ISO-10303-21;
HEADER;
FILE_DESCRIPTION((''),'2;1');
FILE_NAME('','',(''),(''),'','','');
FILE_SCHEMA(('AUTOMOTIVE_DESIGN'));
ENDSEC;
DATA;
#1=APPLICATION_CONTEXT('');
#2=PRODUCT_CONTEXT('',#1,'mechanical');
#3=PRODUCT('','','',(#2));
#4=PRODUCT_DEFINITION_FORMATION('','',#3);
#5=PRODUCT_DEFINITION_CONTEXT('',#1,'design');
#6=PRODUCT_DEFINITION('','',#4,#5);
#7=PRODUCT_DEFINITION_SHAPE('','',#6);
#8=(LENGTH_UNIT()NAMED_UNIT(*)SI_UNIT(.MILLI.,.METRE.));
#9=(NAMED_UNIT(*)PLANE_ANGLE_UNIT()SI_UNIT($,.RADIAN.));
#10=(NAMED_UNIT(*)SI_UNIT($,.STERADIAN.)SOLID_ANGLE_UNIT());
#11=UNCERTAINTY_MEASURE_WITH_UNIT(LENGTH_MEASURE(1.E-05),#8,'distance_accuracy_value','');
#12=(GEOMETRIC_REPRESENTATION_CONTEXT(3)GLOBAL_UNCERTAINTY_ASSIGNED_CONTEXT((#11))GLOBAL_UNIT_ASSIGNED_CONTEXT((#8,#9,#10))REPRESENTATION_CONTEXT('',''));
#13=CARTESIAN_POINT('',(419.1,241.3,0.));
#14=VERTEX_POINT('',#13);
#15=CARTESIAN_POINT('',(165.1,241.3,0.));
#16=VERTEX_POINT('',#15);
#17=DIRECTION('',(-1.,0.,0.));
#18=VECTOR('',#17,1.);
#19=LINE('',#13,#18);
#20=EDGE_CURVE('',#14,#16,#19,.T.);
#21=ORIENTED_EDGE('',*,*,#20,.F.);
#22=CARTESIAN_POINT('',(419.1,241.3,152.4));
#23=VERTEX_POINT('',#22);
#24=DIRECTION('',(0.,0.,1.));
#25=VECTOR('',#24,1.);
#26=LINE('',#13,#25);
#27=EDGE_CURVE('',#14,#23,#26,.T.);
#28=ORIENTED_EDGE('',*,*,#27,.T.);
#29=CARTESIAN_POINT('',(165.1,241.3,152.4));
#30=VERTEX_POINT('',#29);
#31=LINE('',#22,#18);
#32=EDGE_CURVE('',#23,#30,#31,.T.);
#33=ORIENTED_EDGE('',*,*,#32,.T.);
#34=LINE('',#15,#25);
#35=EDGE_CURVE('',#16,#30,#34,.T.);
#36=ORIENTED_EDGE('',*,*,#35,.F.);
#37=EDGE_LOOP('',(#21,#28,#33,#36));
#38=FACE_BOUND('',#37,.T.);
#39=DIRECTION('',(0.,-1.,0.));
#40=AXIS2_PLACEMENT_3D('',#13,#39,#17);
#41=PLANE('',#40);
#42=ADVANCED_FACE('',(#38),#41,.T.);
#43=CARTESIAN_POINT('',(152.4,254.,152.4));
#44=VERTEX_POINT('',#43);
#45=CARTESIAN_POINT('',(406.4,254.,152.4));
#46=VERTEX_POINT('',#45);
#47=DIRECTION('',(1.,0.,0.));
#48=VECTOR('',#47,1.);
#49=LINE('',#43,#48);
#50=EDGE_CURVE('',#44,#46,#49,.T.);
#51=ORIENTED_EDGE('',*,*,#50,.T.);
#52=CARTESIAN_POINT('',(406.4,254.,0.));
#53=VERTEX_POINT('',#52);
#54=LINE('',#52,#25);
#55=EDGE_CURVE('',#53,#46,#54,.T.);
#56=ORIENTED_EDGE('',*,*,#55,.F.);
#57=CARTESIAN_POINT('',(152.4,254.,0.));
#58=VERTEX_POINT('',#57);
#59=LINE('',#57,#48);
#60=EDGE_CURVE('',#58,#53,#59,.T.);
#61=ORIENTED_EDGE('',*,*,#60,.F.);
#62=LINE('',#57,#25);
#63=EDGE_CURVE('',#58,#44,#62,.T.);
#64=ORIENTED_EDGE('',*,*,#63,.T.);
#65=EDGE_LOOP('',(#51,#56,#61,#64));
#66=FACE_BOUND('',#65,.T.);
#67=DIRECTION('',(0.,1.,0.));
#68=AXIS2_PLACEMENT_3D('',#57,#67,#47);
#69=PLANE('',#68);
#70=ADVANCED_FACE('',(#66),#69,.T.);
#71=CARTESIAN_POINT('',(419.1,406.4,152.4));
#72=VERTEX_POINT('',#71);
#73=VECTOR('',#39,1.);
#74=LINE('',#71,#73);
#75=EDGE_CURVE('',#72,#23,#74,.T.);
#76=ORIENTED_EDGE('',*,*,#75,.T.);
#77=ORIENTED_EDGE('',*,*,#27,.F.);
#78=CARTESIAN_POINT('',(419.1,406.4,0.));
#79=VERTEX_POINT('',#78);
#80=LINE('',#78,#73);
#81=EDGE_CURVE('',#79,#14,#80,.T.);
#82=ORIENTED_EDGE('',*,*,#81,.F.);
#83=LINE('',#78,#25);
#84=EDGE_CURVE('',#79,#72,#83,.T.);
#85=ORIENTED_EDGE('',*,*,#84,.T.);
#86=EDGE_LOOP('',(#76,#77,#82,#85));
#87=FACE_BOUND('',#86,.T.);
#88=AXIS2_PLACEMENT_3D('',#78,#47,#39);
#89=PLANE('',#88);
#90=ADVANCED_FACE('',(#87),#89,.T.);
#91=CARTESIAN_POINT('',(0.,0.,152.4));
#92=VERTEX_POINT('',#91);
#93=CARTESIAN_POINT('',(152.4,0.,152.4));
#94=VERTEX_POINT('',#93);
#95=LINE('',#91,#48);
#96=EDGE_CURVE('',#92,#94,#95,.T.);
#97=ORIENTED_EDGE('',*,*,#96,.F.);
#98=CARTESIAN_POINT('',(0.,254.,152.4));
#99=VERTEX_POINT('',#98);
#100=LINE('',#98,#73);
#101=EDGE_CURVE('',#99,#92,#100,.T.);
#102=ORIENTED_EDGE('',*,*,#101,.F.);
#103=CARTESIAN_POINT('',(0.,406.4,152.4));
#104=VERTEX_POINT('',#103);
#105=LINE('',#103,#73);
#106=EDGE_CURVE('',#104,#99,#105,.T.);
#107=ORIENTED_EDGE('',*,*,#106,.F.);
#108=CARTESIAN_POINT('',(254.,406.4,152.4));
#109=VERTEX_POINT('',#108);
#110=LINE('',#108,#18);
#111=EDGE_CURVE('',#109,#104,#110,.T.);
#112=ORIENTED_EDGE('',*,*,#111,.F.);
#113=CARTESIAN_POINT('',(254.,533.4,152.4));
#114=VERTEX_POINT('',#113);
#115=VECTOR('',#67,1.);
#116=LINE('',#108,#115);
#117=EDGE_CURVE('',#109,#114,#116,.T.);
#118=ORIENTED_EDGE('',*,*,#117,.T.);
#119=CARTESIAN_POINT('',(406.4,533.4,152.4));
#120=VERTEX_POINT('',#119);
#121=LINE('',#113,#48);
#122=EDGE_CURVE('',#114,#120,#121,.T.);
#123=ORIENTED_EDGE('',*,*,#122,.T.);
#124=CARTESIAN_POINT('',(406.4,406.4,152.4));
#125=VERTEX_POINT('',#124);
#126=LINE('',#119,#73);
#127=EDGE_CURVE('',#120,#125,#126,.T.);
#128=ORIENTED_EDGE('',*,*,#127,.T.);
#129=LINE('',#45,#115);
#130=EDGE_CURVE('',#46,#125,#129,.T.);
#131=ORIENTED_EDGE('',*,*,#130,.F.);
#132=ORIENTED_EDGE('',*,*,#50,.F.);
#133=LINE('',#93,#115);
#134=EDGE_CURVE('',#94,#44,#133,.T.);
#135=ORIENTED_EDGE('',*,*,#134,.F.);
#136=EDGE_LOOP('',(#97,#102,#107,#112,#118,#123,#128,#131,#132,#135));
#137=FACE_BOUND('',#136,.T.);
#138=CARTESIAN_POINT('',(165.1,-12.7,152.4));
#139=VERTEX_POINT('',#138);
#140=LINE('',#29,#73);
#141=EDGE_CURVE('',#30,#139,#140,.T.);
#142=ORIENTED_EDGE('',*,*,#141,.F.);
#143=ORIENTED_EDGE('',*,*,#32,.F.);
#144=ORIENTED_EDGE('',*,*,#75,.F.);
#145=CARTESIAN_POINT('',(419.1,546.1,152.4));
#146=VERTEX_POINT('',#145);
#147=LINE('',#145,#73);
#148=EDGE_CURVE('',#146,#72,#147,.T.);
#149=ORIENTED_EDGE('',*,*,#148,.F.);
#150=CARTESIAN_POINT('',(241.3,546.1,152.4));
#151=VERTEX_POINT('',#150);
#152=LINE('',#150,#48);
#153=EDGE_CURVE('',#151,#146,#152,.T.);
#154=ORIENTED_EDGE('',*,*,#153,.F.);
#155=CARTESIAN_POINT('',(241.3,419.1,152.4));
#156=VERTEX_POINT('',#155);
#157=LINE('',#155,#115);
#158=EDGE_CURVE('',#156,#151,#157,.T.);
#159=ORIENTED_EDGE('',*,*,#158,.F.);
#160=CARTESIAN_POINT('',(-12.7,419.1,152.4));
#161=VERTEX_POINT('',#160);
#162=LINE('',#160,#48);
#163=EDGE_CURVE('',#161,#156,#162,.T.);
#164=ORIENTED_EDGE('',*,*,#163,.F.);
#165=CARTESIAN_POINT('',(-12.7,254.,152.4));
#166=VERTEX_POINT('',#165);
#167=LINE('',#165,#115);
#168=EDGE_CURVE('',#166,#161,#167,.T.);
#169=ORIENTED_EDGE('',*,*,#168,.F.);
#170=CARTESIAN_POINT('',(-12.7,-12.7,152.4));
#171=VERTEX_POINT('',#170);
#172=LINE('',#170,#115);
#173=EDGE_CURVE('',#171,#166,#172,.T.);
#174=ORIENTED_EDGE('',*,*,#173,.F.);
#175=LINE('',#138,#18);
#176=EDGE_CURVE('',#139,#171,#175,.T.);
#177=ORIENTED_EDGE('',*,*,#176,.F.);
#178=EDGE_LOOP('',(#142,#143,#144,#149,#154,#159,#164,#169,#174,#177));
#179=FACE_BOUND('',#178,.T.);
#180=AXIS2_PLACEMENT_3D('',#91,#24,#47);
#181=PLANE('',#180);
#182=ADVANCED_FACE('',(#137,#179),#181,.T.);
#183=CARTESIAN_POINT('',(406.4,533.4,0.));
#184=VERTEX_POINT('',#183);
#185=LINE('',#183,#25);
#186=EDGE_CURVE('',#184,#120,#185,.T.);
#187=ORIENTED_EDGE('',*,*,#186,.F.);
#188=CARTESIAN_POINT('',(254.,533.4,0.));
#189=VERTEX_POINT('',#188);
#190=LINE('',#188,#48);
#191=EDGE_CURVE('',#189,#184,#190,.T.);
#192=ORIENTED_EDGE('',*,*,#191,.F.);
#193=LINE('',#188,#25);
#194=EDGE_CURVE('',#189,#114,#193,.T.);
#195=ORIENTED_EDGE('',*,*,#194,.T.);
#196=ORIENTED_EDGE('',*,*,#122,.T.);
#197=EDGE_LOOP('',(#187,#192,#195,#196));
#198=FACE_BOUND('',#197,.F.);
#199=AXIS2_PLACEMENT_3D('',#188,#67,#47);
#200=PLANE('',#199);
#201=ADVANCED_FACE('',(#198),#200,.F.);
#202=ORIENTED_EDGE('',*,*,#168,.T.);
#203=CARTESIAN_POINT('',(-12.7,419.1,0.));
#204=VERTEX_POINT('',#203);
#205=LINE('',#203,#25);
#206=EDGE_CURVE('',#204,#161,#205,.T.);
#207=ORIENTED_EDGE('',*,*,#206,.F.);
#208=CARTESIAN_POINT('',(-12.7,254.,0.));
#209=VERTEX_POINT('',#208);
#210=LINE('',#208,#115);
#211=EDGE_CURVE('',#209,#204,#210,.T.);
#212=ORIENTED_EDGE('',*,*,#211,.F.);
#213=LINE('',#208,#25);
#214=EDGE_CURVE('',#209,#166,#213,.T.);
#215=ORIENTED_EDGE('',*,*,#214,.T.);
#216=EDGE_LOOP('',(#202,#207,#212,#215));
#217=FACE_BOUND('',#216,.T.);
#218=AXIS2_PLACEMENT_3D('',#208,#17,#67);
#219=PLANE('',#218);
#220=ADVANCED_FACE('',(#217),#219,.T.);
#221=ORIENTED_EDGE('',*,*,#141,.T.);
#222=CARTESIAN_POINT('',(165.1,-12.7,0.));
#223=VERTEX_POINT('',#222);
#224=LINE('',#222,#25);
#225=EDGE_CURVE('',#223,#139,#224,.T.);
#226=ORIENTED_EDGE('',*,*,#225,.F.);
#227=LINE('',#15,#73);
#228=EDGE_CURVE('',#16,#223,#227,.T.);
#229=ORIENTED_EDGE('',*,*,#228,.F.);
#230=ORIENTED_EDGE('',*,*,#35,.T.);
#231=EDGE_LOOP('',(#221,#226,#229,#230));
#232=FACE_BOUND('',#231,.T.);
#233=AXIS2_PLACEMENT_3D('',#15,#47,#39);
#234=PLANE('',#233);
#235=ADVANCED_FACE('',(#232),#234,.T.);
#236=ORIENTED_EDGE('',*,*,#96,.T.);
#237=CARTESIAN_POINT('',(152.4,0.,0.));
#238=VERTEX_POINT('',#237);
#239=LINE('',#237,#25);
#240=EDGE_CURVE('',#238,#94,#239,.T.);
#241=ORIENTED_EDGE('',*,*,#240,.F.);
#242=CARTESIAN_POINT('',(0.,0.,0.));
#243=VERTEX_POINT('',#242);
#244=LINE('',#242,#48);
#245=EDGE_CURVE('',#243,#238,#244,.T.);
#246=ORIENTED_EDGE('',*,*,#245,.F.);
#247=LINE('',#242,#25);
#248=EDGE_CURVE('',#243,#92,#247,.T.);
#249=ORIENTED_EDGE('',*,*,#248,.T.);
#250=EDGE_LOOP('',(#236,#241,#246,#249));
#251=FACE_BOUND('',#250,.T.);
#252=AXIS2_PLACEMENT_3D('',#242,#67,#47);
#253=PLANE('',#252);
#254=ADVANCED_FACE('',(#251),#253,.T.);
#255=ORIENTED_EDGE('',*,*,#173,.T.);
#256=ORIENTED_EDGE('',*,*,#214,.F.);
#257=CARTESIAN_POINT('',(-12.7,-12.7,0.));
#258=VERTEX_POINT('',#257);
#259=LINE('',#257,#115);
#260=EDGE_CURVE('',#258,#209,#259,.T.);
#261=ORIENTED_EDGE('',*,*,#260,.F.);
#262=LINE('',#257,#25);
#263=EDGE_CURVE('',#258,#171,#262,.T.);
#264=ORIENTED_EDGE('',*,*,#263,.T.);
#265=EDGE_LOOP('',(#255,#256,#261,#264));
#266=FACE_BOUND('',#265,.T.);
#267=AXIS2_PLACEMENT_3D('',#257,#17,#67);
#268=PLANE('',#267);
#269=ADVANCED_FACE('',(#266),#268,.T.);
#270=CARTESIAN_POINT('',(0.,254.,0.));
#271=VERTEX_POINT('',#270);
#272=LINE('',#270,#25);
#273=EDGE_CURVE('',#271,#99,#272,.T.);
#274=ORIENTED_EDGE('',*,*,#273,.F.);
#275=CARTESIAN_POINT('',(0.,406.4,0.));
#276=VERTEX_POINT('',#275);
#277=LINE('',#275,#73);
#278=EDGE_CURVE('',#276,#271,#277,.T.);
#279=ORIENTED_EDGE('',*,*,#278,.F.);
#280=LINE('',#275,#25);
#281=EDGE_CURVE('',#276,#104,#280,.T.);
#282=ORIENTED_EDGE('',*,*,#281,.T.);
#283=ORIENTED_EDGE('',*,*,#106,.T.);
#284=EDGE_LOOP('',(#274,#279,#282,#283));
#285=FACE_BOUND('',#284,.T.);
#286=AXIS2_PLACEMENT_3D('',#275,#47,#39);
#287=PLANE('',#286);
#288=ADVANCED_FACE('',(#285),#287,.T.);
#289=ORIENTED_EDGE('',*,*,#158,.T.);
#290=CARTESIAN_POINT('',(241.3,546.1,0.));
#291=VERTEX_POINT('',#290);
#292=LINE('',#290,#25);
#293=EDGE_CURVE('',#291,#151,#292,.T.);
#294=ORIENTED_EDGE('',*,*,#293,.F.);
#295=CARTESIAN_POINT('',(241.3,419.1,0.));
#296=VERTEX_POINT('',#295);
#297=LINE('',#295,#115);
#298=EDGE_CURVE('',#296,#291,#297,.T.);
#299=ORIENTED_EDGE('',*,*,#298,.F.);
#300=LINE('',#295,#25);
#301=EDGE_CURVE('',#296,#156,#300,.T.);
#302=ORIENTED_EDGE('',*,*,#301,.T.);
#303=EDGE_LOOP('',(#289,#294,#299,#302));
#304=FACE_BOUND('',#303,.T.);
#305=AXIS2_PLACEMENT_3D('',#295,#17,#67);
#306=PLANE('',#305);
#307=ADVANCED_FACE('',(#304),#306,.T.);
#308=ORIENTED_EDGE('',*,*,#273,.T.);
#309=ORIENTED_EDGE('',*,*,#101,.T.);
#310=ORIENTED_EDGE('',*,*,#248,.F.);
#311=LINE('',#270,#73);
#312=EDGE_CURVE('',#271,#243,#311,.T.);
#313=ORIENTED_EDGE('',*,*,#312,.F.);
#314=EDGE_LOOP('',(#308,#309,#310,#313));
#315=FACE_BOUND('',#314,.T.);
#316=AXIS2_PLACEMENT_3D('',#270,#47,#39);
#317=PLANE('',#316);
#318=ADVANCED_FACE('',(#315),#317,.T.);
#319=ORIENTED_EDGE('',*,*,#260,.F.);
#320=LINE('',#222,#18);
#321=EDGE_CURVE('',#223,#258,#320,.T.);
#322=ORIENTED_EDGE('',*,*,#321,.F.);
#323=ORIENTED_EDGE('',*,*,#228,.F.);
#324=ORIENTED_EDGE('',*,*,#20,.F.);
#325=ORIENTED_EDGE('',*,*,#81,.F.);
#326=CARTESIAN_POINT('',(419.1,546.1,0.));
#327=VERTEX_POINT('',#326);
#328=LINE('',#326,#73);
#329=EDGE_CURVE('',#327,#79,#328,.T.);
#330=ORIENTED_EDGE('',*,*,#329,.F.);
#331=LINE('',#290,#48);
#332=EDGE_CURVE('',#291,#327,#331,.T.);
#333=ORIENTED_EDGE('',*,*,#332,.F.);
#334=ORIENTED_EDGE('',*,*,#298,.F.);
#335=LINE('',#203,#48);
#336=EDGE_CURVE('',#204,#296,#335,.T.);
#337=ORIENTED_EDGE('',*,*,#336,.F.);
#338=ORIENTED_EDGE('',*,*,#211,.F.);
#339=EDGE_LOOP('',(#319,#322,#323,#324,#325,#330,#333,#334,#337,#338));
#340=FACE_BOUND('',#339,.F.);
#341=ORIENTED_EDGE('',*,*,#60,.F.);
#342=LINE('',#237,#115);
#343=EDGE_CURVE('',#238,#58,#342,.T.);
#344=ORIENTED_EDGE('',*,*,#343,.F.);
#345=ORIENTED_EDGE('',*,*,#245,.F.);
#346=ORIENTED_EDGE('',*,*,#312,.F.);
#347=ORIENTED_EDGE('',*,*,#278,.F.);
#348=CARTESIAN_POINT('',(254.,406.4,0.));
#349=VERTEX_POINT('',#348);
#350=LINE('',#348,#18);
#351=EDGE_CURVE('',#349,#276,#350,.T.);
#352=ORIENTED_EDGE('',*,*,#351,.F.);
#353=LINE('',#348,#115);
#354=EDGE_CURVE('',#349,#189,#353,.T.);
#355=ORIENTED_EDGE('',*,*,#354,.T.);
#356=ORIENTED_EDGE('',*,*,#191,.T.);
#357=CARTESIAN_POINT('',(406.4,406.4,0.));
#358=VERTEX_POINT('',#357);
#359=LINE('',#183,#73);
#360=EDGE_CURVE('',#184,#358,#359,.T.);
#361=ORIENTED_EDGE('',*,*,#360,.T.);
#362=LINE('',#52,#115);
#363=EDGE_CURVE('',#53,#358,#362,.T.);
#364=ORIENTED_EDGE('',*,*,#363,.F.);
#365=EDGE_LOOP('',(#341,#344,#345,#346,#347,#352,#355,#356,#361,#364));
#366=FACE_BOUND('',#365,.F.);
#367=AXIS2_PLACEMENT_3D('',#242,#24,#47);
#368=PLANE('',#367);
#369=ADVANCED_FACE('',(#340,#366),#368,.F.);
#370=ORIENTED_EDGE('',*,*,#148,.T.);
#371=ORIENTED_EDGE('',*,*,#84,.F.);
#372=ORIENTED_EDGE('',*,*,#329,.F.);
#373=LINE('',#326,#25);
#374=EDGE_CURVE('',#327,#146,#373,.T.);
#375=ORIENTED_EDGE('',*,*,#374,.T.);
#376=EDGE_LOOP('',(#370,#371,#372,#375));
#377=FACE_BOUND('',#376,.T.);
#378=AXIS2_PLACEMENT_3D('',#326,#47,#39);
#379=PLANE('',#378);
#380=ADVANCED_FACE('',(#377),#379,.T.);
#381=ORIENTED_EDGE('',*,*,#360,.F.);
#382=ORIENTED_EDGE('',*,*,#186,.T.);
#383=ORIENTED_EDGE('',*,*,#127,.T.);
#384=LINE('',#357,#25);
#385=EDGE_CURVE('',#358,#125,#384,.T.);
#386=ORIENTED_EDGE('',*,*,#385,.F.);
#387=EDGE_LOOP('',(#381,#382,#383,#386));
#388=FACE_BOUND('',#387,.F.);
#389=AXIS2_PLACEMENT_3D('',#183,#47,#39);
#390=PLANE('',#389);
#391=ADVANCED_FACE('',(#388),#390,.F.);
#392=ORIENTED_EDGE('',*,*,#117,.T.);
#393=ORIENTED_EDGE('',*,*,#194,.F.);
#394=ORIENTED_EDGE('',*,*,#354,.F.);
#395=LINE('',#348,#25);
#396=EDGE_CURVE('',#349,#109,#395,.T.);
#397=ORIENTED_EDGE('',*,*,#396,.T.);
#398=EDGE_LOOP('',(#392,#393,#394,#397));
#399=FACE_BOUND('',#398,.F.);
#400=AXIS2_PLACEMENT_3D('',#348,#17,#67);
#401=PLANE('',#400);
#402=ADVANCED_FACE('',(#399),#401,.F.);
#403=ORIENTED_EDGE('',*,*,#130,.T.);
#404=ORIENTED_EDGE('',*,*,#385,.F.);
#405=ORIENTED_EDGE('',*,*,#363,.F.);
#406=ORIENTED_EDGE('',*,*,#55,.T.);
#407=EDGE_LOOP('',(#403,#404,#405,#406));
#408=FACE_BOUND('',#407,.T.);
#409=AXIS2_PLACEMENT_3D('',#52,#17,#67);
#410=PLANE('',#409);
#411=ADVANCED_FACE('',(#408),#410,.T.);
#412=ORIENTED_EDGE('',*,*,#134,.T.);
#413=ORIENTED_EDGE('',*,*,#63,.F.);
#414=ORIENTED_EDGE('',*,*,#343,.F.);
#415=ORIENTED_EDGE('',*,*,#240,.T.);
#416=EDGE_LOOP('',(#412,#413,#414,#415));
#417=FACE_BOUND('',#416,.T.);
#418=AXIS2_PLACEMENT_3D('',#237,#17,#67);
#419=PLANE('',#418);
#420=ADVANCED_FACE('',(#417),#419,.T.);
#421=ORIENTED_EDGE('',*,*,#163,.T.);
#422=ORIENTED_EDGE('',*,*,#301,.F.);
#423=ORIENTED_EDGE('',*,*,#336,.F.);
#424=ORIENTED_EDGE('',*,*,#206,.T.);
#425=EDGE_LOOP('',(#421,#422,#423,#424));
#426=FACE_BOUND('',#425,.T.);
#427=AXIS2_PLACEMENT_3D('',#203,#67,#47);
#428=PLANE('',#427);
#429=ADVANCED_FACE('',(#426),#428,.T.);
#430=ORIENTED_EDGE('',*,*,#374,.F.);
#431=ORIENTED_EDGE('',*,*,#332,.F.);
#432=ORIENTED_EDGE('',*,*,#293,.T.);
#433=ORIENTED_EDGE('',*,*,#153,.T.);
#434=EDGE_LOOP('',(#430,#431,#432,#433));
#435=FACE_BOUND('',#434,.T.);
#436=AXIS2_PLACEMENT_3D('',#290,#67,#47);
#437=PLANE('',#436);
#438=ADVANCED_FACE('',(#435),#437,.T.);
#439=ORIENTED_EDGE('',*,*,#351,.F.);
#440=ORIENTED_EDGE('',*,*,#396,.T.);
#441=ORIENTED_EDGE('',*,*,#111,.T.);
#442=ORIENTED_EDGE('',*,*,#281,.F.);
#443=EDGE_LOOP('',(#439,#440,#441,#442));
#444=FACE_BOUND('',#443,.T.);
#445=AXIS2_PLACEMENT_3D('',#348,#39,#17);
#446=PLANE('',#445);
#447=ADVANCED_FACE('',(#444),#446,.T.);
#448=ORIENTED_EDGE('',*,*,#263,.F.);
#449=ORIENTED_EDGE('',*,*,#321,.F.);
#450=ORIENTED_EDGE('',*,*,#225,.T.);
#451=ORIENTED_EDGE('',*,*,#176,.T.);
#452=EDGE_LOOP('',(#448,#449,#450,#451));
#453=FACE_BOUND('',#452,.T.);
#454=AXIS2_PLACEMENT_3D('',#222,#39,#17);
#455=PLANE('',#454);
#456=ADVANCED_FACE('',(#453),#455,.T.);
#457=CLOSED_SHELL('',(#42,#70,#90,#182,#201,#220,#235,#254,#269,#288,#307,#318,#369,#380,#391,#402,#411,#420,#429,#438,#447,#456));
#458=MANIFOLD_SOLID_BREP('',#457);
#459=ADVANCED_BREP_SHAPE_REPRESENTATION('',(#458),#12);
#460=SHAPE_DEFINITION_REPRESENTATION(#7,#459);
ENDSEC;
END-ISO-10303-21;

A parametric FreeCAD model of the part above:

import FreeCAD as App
import Part
import Sketcher
Q = App.Units.Quantity


def add_polygon(sketch, points):
    """Adds a closed chain of lines whose ends are joined by coincident constraints."""
    first, n = sketch.GeometryCount, len(points)
    for a, b in zip(points, points[1:] + points[:1]):
        sketch.addGeometry(Part.LineSegment(App.Vector(*a, 0), App.Vector(*b, 0)), False)
    for i in range(n):
        sketch.addConstraint(Sketcher.Constraint("Coincident", first + i, 2, first + (i + 1) % n, 1))

doc = App.newDocument("Part")
params = doc.addObject("Spreadsheet::Sheet", "Params")
for row, (alias, value) in enumerate([
    ("sketch1_width", "10 in"),
    ("sketch1_width2", "7 in"),
    ("sketch1_height", "17 in"),
    ("sketch1_height2", "12 in"),
    ("pad1_length", "6 in"),
], start=1):
    params.set(f"A{row}", alias)
    params.set(f"B{row}", "=" + value)
    params.setAlias(f"B{row}", alias)

body = doc.addObject("PartDesign::Body", "Body")

# Sketch on XY plane
sketch1 = body.newObject("Sketcher::SketchObject", "Sketch")
sketch1.AttachmentSupport = (doc.getObject("XY_Plane"), [""])
sketch1.MapMode = "FlatFace"
add_polygon(sketch1, [(241, 419), (-13, 419), (-13, -13), (165, -13), (165, 241), (419, 241), (419, 546), (241, 546)])  # lines 0-7
add_polygon(sketch1, [(152, 0), (0, 0), (0, 406), (254, 406), (254, 533), (406, 533), (406, 254), (152, 254)])  # lines 8-15
sketch1.addConstraint([
    Sketcher.Constraint("Horizontal", 0),
    Sketcher.Constraint("Vertical", 1),
    Sketcher.Constraint("Horizontal", 2),
    Sketcher.Constraint("Vertical", 3),
    Sketcher.Constraint("Horizontal", 4),
    Sketcher.Constraint("Vertical", 5),
    Sketcher.Constraint("Horizontal", 6),
    Sketcher.Constraint("Vertical", 7),
    Sketcher.Constraint("Horizontal", 8),
    Sketcher.Constraint("Vertical", 9),
    Sketcher.Constraint("Horizontal", 10),
    Sketcher.Constraint("Vertical", 11),
    Sketcher.Constraint("Horizontal", 12),
    Sketcher.Constraint("Vertical", 13),
    Sketcher.Constraint("Horizontal", 14),
    Sketcher.Constraint("Vertical", 15),
    Sketcher.Constraint("Coincident", 8, 2, -1, 1),
    Sketcher.Constraint("Equal", 0, 4),
    Sketcher.Constraint("Equal", 4, 10),
    Sketcher.Constraint("Equal", 8, 12),
    Sketcher.Constraint("Equal", 14, 3),
    Sketcher.Constraint("Equal", 7, 11),
    Sketcher.Constraint("Equal", 3, 15),
    Sketcher.Constraint("DistanceX", 0, 2, -1, 1, Q("0.5 in")),
    Sketcher.Constraint("DistanceY", 1, 2, -1, 1, Q("0.5 in")),
    Sketcher.Constraint("DistanceY", 9, 2, 0, 2, Q("0.5 in")),
    Sketcher.Constraint("DistanceX", 12, 2, 5, 2, Q("0.5 in")),
    Sketcher.Constraint("DistanceX", 0, 2, 0, 1, Q("10 in")),
    Sketcher.Constraint("DistanceX", 2, 1, 2, 2, Q("7 in")),
    Sketcher.Constraint("DistanceY", 1, 2, 1, 1, Q("17 in")),
    Sketcher.Constraint("DistanceY", 5, 1, 5, 2, Q("12 in")),
])
sketch1.setExpression("Constraints[43]", "Params.sketch1_width")
sketch1.setExpression("Constraints[44]", "Params.sketch1_width2")
sketch1.setExpression("Constraints[45]", "Params.sketch1_height")
sketch1.setExpression("Constraints[46]", "Params.sketch1_height2")
pad1 = body.newObject("PartDesign::Pad", "Pad")
pad1.Profile = sketch1
pad1.setExpression("Length", "Params.pad1_length")

doc.recompute()
